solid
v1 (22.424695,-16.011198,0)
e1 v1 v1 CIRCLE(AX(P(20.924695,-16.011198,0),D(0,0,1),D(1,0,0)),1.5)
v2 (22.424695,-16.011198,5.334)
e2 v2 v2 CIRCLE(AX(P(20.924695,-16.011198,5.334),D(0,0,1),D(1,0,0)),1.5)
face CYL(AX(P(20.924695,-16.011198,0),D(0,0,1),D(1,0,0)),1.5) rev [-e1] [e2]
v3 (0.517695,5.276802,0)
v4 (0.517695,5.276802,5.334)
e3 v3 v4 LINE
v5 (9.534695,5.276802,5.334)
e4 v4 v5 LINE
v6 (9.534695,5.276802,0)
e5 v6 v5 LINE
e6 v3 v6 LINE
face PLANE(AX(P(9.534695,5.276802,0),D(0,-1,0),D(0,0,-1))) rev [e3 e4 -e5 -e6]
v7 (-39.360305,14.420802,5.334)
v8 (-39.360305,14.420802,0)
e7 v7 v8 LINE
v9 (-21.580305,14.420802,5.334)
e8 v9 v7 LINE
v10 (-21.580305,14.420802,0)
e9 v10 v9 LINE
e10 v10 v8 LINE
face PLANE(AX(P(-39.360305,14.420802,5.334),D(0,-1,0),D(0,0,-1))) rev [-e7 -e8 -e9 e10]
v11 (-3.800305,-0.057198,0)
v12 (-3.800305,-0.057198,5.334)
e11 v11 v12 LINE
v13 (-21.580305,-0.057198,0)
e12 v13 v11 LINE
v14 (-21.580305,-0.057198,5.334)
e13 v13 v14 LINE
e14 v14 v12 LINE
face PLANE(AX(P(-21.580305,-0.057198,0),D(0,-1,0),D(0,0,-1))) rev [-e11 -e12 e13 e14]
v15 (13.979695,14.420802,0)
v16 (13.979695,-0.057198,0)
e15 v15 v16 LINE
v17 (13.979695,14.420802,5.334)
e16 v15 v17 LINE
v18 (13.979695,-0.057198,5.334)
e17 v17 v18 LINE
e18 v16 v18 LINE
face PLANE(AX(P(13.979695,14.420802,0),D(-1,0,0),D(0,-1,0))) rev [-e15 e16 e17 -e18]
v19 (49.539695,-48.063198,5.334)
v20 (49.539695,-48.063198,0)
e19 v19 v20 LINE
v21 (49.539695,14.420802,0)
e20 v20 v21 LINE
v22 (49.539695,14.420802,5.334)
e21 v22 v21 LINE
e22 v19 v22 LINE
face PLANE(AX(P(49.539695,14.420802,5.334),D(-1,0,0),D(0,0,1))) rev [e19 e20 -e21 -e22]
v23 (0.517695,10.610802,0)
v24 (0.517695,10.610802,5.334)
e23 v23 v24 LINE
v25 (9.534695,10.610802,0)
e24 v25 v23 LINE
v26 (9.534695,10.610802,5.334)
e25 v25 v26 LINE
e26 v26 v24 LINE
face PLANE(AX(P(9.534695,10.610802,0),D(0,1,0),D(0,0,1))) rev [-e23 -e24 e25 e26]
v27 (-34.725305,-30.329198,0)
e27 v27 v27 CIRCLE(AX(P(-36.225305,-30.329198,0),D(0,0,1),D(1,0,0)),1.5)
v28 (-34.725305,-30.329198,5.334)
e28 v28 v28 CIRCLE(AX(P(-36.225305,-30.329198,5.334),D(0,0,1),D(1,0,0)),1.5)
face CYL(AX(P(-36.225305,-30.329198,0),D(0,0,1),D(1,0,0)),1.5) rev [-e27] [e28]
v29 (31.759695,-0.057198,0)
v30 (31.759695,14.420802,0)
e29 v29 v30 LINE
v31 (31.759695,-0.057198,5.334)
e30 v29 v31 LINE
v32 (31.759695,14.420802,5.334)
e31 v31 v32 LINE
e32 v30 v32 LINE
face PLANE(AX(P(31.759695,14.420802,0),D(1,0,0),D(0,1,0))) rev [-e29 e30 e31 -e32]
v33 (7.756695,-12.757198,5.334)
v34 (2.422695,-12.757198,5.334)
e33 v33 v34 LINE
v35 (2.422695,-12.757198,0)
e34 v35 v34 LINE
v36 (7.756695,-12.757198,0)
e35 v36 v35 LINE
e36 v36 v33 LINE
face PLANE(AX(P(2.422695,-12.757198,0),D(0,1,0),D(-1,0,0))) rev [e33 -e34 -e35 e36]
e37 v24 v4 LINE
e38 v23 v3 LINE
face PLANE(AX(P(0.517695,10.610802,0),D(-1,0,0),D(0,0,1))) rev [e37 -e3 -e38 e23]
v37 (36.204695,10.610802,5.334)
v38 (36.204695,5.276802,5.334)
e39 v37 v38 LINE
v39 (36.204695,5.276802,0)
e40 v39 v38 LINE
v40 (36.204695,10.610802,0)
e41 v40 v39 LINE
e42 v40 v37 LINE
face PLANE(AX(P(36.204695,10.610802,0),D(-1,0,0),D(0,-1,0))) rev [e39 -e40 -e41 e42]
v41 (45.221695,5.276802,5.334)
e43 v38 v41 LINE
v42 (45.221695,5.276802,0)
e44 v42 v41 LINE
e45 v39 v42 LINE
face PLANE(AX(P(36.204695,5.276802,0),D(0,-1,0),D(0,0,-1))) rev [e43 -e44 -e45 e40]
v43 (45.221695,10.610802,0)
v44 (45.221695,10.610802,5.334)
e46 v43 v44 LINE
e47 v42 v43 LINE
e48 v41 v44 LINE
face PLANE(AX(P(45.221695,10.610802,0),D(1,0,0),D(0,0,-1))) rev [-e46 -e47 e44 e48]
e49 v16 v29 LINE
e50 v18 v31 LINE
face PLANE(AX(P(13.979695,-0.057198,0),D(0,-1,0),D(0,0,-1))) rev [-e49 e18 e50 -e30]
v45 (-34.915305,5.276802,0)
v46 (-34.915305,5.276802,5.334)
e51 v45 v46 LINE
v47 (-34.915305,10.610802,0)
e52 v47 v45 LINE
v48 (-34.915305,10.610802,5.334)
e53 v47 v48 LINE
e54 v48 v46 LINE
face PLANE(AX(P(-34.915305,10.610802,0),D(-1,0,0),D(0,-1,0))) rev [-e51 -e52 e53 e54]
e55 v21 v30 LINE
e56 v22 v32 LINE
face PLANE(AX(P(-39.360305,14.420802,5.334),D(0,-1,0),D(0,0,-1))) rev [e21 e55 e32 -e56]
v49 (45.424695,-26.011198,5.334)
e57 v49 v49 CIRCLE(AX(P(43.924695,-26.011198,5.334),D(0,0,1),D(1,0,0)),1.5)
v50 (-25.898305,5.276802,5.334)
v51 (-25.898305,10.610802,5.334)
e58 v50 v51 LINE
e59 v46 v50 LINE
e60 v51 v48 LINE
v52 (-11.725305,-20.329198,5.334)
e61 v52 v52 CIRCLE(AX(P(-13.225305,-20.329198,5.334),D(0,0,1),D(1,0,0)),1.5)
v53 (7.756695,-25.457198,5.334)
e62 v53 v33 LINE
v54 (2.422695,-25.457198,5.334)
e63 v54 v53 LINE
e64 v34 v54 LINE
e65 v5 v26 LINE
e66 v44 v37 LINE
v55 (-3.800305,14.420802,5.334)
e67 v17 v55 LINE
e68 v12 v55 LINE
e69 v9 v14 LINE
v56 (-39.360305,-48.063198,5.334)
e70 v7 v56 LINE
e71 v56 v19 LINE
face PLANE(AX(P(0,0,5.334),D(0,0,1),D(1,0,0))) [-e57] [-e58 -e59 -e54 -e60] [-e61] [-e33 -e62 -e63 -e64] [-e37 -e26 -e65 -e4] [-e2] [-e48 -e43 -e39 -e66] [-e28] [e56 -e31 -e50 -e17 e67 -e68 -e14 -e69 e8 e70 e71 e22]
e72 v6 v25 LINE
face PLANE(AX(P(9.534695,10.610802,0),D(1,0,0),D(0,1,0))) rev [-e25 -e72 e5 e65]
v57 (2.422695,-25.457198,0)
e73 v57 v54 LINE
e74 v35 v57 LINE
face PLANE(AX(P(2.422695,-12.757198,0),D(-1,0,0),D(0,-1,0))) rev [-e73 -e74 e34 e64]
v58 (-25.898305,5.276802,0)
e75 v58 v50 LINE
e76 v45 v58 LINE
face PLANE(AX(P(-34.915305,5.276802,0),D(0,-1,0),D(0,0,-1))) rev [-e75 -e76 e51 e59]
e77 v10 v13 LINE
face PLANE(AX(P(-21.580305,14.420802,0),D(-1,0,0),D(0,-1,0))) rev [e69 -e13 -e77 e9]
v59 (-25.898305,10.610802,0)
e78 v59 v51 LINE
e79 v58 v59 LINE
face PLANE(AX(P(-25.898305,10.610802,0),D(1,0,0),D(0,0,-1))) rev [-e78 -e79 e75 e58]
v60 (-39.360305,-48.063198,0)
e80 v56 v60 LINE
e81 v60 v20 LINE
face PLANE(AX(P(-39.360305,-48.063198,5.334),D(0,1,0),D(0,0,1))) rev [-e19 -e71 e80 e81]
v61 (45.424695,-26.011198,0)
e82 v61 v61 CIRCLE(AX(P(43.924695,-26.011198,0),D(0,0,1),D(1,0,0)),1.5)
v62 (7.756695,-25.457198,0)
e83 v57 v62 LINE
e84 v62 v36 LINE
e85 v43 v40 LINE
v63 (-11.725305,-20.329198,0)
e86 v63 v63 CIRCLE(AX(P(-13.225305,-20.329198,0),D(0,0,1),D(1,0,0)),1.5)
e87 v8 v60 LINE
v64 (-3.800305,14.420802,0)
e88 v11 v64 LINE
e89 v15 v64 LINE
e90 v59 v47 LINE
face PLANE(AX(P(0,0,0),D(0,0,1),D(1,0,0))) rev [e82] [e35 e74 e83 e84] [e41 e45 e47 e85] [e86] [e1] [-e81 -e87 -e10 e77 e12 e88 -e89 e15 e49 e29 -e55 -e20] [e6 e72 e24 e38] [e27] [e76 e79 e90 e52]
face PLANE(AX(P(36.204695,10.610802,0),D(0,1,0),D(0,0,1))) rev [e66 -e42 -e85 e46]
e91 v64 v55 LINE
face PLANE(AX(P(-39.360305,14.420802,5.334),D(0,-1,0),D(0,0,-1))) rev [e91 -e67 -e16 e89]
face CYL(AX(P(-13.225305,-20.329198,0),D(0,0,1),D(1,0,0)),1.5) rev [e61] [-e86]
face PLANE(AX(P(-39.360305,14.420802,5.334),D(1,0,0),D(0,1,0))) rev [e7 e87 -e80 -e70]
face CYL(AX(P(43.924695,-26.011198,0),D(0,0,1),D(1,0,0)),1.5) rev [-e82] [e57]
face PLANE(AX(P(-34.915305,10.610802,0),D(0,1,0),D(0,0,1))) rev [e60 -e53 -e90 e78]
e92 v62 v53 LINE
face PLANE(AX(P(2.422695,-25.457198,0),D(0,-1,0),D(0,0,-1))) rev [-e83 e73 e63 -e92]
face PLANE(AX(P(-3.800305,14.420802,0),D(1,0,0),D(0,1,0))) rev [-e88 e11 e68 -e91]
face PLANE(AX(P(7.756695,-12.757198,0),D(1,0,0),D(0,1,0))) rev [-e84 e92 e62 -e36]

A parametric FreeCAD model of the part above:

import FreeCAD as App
import Part
import Sketcher
Q = App.Units.Quantity

doc = App.newDocument("Part")
params = doc.addObject("Spreadsheet::Sheet", "Params")
for row, (alias, value) in enumerate([
    ("sketch1_width", "3.5 in"),
    ("sketch1_height", "2.46 in"),
    ("pad1_length", "0.21 in"),
    ("sketch2_width", "0.7 in"),
    ("sketch2_height", "0.57 in"),
    ("sketch3_height", "0.21 in"),
    ("sketch3_width", "0.355 in"),
    ("sketch4_height", "0.5 in"),
    ("sketch4_width", "0.21 in"),
], start=1):
    params.set(f"A{row}", alias)
    params.set(f"B{row}", "=" + value)
    params.setAlias(f"B{row}", alias)

body = doc.addObject("PartDesign::Body", "Body")

sketch1 = body.newObject("Sketcher::SketchObject", "Sketch")
sketch1.AttachmentSupport = (doc.getObject("XY_Plane"), [""])
sketch1.MapMode = "FlatFace"
sketch1.addGeometry([
    Part.LineSegment(App.Vector(-39, 14, 0), App.Vector(-39, -48, 0)),
    Part.LineSegment(App.Vector(-39, -48, 0), App.Vector(50, -48, 0)),
    Part.LineSegment(App.Vector(50, -48, 0), App.Vector(50, 14, 0)),
    Part.LineSegment(App.Vector(50, 14, 0), App.Vector(-39, 14, 0)),
], False)
sketch1.addConstraint([
    Sketcher.Constraint("Coincident", 0, 2, 1, 1),
    Sketcher.Constraint("Coincident", 1, 2, 2, 1),
    Sketcher.Constraint("Coincident", 2, 2, 3, 1),
    Sketcher.Constraint("Coincident", 3, 2, 0, 1),
    Sketcher.Constraint("Vertical", 0),
    Sketcher.Constraint("Horizontal", 1),
    Sketcher.Constraint("Vertical", 2),
    Sketcher.Constraint("Horizontal", 3),
    Sketcher.Constraint("DistanceX", 1, 1, 1, 2, Q("3.5 in")),
    Sketcher.Constraint("DistanceY", 0, 2, 0, 1, Q("2.46 in")),
    Sketcher.Constraint("DistanceY", 0, 2, -1, 1, Q("48.063198 mm")),
    Sketcher.Constraint("DistanceX", 0, 2, -1, 1, Q("39.360305 mm")),
])
sketch1.setExpression("Constraints[8]", "Params.sketch1_width")
sketch1.setExpression("Constraints[9]", "Params.sketch1_height")
pad1 = body.newObject("PartDesign::Pad", "Pad")
pad1.Profile = sketch1
pad1.setExpression("Length", "Params.pad1_length")

sketch2 = body.newObject("Sketcher::SketchObject", "Sketch001")
sketch2.AttachmentSupport = (doc.getObject("XY_Plane"), [""])
sketch2.MapMode = "FlatFace"
sketch2.AttachmentOffset = App.Placement(App.Vector(0, 0, 0.21 * 25.4), App.Rotation())
sketch2.addGeometry([
    Part.LineSegment(App.Vector(-22, 14, 0), App.Vector(-22, 0, 0)),
    Part.LineSegment(App.Vector(-22, 0, 0), App.Vector(-4, 0, 0)),
    Part.LineSegment(App.Vector(-4, 0, 0), App.Vector(-4, 14, 0)),
    Part.LineSegment(App.Vector(-4, 14, 0), App.Vector(-22, 14, 0)),
    Part.LineSegment(App.Vector(14, 14, 0), App.Vector(14, 0, 0)),
    Part.LineSegment(App.Vector(14, 0, 0), App.Vector(32, 0, 0)),
    Part.LineSegment(App.Vector(32, 0, 0), App.Vector(32, 14, 0)),
    Part.LineSegment(App.Vector(32, 14, 0), App.Vector(14, 14, 0)),
], False)
sketch2.addConstraint([
    Sketcher.Constraint("Coincident", 0, 2, 1, 1),
    Sketcher.Constraint("Coincident", 1, 2, 2, 1),
    Sketcher.Constraint("Coincident", 2, 2, 3, 1),
    Sketcher.Constraint("Coincident", 3, 2, 0, 1),
    Sketcher.Constraint("Coincident", 4, 2, 5, 1),
    Sketcher.Constraint("Coincident", 5, 2, 6, 1),
    Sketcher.Constraint("Coincident", 6, 2, 7, 1),
    Sketcher.Constraint("Coincident", 7, 2, 4, 1),
    Sketcher.Constraint("Vertical", 0),
    Sketcher.Constraint("Horizontal", 1),
    Sketcher.Constraint("Vertical", 2),
    Sketcher.Constraint("Horizontal", 3),
    Sketcher.Constraint("Vertical", 4),
    Sketcher.Constraint("Horizontal", 5),
    Sketcher.Constraint("Vertical", 6),
    Sketcher.Constraint("Horizontal", 7),
    Sketcher.Constraint("Horizontal", 1, 2, 4, 2),
    Sketcher.Constraint("Horizontal", 3, 2, 6, 2),
    Sketcher.Constraint("Equal", 3, 5),
    Sketcher.Constraint("DistanceX", 1, 1, 1, 2, Q("0.7 in")),
    Sketcher.Constraint("DistanceY", 0, 2, 0, 1, Q("0.57 in")),
    Sketcher.Constraint("DistanceX", 1, 2, 4, 2, Q("0.7 in")),
    Sketcher.Constraint("DistanceY", 0, 2, -1, 1, Q("0.057198 mm")),
    Sketcher.Constraint("DistanceX", 0, 2, -1, 1, Q("21.580305 mm")),
])
sketch2.setExpression("Constraints[19]", "Params.sketch2_width")
sketch2.setExpression("Constraints[20]", "Params.sketch2_height")
pocket1 = body.newObject("PartDesign::Pocket", "Pocket")
pocket1.Profile = sketch2
pocket1.Type = "ThroughAll"

sketch3 = body.newObject("Sketcher::SketchObject", "Sketch002")
sketch3.AttachmentSupport = (doc.getObject("XY_Plane"), [""])
sketch3.MapMode = "FlatFace"
sketch3.AttachmentOffset = App.Placement(App.Vector(0, 0, 0.21 * 25.4), App.Rotation())
sketch3.addGeometry([
    Part.LineSegment(App.Vector(-35, 11, 0), App.Vector(-35, 5, 0)),
    Part.LineSegment(App.Vector(-35, 5, 0), App.Vector(-26, 5, 0)),
    Part.LineSegment(App.Vector(-26, 5, 0), App.Vector(-26, 11, 0)),
    Part.LineSegment(App.Vector(-26, 11, 0), App.Vector(-35, 11, 0)),
    Part.LineSegment(App.Vector(1, 11, 0), App.Vector(1, 5, 0)),
    Part.LineSegment(App.Vector(1, 5, 0), App.Vector(10, 5, 0)),
    Part.LineSegment(App.Vector(10, 5, 0), App.Vector(10, 11, 0)),
    Part.LineSegment(App.Vector(10, 11, 0), App.Vector(1, 11, 0)),
    Part.LineSegment(App.Vector(36, 11, 0), App.Vector(36, 5, 0)),
    Part.LineSegment(App.Vector(36, 5, 0), App.Vector(45, 5, 0)),
    Part.LineSegment(App.Vector(45, 5, 0), App.Vector(45, 11, 0)),
    Part.LineSegment(App.Vector(45, 11, 0), App.Vector(36, 11, 0)),
], False)
sketch3.addConstraint([
    Sketcher.Constraint("Coincident", 0, 2, 1, 1),
    Sketcher.Constraint("Coincident", 1, 2, 2, 1),
    Sketcher.Constraint("Coincident", 2, 2, 3, 1),
    Sketcher.Constraint("Coincident", 3, 2, 0, 1),
    Sketcher.Constraint("Coincident", 4, 2, 5, 1),
    Sketcher.Constraint("Coincident", 5, 2, 6, 1),
    Sketcher.Constraint("Coincident", 6, 2, 7, 1),
    Sketcher.Constraint("Coincident", 7, 2, 4, 1),
    Sketcher.Constraint("Coincident", 8, 2, 9, 1),
    Sketcher.Constraint("Coincident", 9, 2, 10, 1),
    Sketcher.Constraint("Coincident", 10, 2, 11, 1),
    Sketcher.Constraint("Coincident", 11, 2, 8, 1),
    Sketcher.Constraint("Vertical", 0),
    Sketcher.Constraint("Horizontal", 1),
    Sketcher.Constraint("Vertical", 2),
    Sketcher.Constraint("Horizontal", 3),
    Sketcher.Constraint("Vertical", 4),
    Sketcher.Constraint("Horizontal", 5),
    Sketcher.Constraint("Vertical", 6),
    Sketcher.Constraint("Horizontal", 7),
    Sketcher.Constraint("Vertical", 8),
    Sketcher.Constraint("Horizontal", 9),
    Sketcher.Constraint("Vertical", 10),
    Sketcher.Constraint("Horizontal", 11),
    Sketcher.Constraint("Horizontal", 1, 2, 4, 2),
    Sketcher.Constraint("Horizontal", 3, 2, 6, 2),
    Sketcher.Constraint("Horizontal", 5, 2, 8, 2),
    Sketcher.Constraint("Horizontal", 7, 2, 10, 2),
    Sketcher.Constraint("Equal", 3, 5),
    Sketcher.Constraint("Equal", 7, 9),
    Sketcher.Constraint("DistanceY", 0, 2, 0, 1, Q("0.21 in")),
    Sketcher.Constraint("DistanceX", 1, 1, 1, 2, Q("0.355 in")),
    Sketcher.Constraint("DistanceX", 1, 2, 4, 2, Q("1.04 in")),
    Sketcher.Constraint("DistanceX", 5, 2, 8, 2, Q("1.05 in")),
    Sketcher.Constraint("DistanceY", -1, 1, 0, 2, Q("5.276802 mm")),
    Sketcher.Constraint("DistanceX", 0, 2, -1, 1, Q("34.915305 mm")),
])
sketch3.setExpression("Constraints[30]", "Params.sketch3_height")
sketch3.setExpression("Constraints[31]", "Params.sketch3_width")
pocket2 = body.newObject("PartDesign::Pocket", "Pocket001")
pocket2.Profile = sketch3
pocket2.Type = "ThroughAll"

sketch4 = body.newObject("Sketcher::SketchObject", "Sketch003")
sketch4.AttachmentSupport = (doc.getObject("XY_Plane"), [""])
sketch4.MapMode = "FlatFace"
sketch4.AttachmentOffset = App.Placement(App.Vector(0, 0, 0.21 * 25.4), App.Rotation())
sketch4.addGeometry([
    Part.LineSegment(App.Vector(2, -13, 0), App.Vector(2, -25, 0)),
    Part.LineSegment(App.Vector(2, -25, 0), App.Vector(8, -25, 0)),
    Part.LineSegment(App.Vector(8, -25, 0), App.Vector(8, -13, 0)),
    Part.LineSegment(App.Vector(8, -13, 0), App.Vector(2, -13, 0)),
], False)
sketch4.addConstraint([
    Sketcher.Constraint("Coincident", 0, 2, 1, 1),
    Sketcher.Constraint("Coincident", 1, 2, 2, 1),
    Sketcher.Constraint("Coincident", 2, 2, 3, 1),
    Sketcher.Constraint("Coincident", 3, 2, 0, 1),
    Sketcher.Constraint("Vertical", 0),
    Sketcher.Constraint("Horizontal", 1),
    Sketcher.Constraint("Vertical", 2),
    Sketcher.Constraint("Horizontal", 3),
    Sketcher.Constraint("DistanceY", 0, 2, 0, 1, Q("0.5 in")),
    Sketcher.Constraint("DistanceX", 1, 1, 1, 2, Q("0.21 in")),
    Sketcher.Constraint("DistanceY", 0, 2, -1, 1, Q("25.457198 mm")),
    Sketcher.Constraint("DistanceX", -1, 1, 0, 2, Q("2.422695 mm")),
])
sketch4.setExpression("Constraints[8]", "Params.sketch4_height")
sketch4.setExpression("Constraints[9]", "Params.sketch4_width")
pocket3 = body.newObject("PartDesign::Pocket", "Pocket002")
pocket3.Profile = sketch4
pocket3.Type = "ThroughAll"

sketch5 = body.newObject("Sketcher::SketchObject", "Sketch004")
sketch5.AttachmentSupport = (doc.getObject("XY_Plane"), [""])
sketch5.MapMode = "FlatFace"
sketch5.AttachmentOffset = App.Placement(App.Vector(0, 0, 0.21 * 25.4), App.Rotation())
sketch5.addGeometry([
    Part.Circle(App.Vector(-36.2, -30.3, 0), App.Vector(0, 0, 1), 1.5),
    Part.Circle(App.Vector(20.9, -16, 0), App.Vector(0, 0, 1), 1.5),
    Part.Circle(App.Vector(43.9, -26, 0), App.Vector(0, 0, 1), 1.5),
    Part.Circle(App.Vector(-13.2, -20.3, 0), App.Vector(0, 0, 1), 1.5),
], False)
sketch5.addConstraint([
    Sketcher.Constraint("Equal", 0, 1),
    Sketcher.Constraint("Equal", 1, 2),
    Sketcher.Constraint("Equal", 2, 3),
    Sketcher.Constraint("Diameter", 0, Q("3 mm")),
    Sketcher.Constraint("DistanceX", 0, 3, 1, 3, Q("2.25 in")),
    Sketcher.Constraint("DistanceY", 0, 3, 2, 3, Q("0.17 in")),
    Sketcher.Constraint("DistanceY", 3, 3, 1, 3, Q("0.17 in")),
    Sketcher.Constraint("DistanceX", 3, 3, 2, 3, Q("2.25 in")),
    Sketcher.Constraint("DistanceY", 0, 3, -1, 1, Q("30.329198 mm")),
    Sketcher.Constraint("DistanceY", 1, 3, -1, 1, Q("16.011198 mm")),
    Sketcher.Constraint("DistanceX", 1, 3, 2, 3, Q("23 mm")),
    Sketcher.Constraint("DistanceX", 0, 3, -1, 1, Q("36.225305 mm")),
])
pocket4 = body.newObject("PartDesign::Pocket", "Pocket003")
pocket4.Profile = sketch5
pocket4.Type = "ThroughAll"

doc.recompute()
